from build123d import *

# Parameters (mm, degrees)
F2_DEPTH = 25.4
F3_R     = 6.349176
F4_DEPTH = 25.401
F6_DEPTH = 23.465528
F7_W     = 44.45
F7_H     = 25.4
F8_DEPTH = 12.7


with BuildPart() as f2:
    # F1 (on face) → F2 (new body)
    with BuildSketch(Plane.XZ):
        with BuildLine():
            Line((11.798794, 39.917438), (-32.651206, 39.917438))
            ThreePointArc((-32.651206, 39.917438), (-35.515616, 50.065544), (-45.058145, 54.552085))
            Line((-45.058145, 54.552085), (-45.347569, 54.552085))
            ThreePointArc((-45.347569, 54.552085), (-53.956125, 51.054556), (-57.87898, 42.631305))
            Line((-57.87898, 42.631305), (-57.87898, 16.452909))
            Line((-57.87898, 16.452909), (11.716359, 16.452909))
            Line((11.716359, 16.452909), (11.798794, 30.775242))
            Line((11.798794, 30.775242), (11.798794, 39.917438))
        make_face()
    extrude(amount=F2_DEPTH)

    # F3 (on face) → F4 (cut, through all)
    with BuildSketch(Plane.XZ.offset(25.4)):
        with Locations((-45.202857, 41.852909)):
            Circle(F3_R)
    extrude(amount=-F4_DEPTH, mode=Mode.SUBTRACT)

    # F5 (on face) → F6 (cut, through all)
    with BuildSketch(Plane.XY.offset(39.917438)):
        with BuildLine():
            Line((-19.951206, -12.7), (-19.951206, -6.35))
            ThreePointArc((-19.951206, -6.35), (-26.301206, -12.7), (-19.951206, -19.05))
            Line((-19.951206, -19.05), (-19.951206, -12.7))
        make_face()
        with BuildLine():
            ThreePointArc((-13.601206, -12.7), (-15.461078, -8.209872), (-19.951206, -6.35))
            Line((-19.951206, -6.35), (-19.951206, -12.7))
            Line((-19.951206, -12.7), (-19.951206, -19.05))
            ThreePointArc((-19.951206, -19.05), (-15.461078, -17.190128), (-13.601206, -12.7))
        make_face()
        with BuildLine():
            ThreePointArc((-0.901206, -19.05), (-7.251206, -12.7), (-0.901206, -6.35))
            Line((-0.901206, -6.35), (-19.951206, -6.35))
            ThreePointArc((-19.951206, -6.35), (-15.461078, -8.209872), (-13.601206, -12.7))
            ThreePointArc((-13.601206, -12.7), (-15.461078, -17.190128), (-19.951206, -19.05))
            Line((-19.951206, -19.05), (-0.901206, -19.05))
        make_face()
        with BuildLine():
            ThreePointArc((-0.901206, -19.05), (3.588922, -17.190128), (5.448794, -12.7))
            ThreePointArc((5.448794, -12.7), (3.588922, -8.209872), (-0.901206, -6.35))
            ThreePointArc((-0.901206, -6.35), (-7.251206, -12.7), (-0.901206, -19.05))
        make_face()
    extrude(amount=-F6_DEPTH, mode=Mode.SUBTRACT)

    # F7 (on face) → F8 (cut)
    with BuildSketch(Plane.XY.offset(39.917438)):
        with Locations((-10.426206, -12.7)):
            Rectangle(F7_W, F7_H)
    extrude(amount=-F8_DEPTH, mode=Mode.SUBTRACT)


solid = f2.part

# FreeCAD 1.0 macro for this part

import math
import FreeCAD as App
import Part
import Sketcher

V = App.Vector
Q = App.Units.Quantity


def add_polygon(sketch, points):
    """Adds a closed chain of lines whose ends are joined by coincident constraints."""
    first, n = sketch.GeometryCount, len(points)
    for a, b in zip(points, points[1:] + points[:1]):
        sketch.addGeometry(Part.LineSegment(App.Vector(*a, 0), App.Vector(*b, 0)), False)
    for i in range(n):
        sketch.addConstraint(Sketcher.Constraint("Coincident", first + i, 2, first + (i + 1) % n, 1))

doc = App.newDocument("Part")
body = doc.addObject("PartDesign::Body", "Body")

# Sketch on XZ plane
sketch1 = body.newObject("Sketcher::SketchObject", "Sketch")
sketch1.AttachmentSupport = (doc.getObject("XZ_Plane"), [""])
sketch1.MapMode = "FlatFace"
sketch1.addGeometry([
    Part.LineSegment(V(11.8, 39.92, 0), V(-32.65, 39.92, 0)),  # 0
    Part.ArcOfCircle(Part.Circle(V(-45.2, 41.85, 0), V(0, 0, 1), 12.7), math.radians(-9), math.radians(89)),  # 1
    Part.LineSegment(V(-45.06, 54.55, 0), V(-45.35, 54.55, 0)),  # 2
    Part.ArcOfCircle(Part.Circle(V(-45.2, 41.85, 0), V(0, 0, 1), 12.7), math.radians(91), math.radians(176)),  # 3
    Part.LineSegment(V(-57.88, 42.63, 0), V(-57.88, 16.45, 0)),  # 4
    Part.LineSegment(V(-57.88, 16.45, 0), V(11.72, 16.45, 0)),  # 5
    Part.LineSegment(V(11.72, 16.45, 0), V(11.8, 30.78, 0)),  # 6
    Part.LineSegment(V(11.8, 30.78, 0), V(11.8, 39.92, 0)),  # 7
], False)
sketch1.addConstraint([
    Sketcher.Constraint("Coincident", 0, 2, 1, 1),
    Sketcher.Constraint("Coincident", 1, 2, 2, 1),
    Sketcher.Constraint("Coincident", 2, 2, 3, 1),
    Sketcher.Constraint("Coincident", 3, 2, 4, 1),
    Sketcher.Constraint("Coincident", 4, 2, 5, 1),
    Sketcher.Constraint("Coincident", 5, 2, 6, 1),
    Sketcher.Constraint("Coincident", 6, 2, 7, 1),
    Sketcher.Constraint("Coincident", 7, 2, 0, 1),
    Sketcher.Constraint("Horizontal", 0),
    Sketcher.Constraint("Horizontal", 2),
    Sketcher.Constraint("Vertical", 4),
    Sketcher.Constraint("Horizontal", 5),
    Sketcher.Constraint("Vertical", 7),
    Sketcher.Constraint("Coincident", 3, 3, 1, 3),
    Sketcher.Constraint("Equal", 1, 3),
    Sketcher.Constraint("Radius", 1, Q("0.5 in")),
    Sketcher.Constraint("DistanceY", 4, 2, 3, 3, Q("1 in")),
    Sketcher.Constraint("DistanceX", 0, 2, 0, 1, Q("1.75 in")),
    Sketcher.Constraint("DistanceX", 3, 2, -1, 1, Q("2.2787 in")),
    Sketcher.Constraint("DistanceX", 5, 1, 5, 2, 69.595339),
    Sketcher.Constraint("Distance", 6, 14.32257),
    Sketcher.Constraint("DistanceX", 2, 2, 2, 1, 0.289424),
    Sketcher.Constraint("DistanceY", 4, 2, 4, 1, 26.178396),
    Sketcher.Constraint("DistanceY", 7, 1, 7, 2, 9.142196),
    Sketcher.Constraint("DistanceY", -1, 1, 1, 3, 41.85291),
])
pad1 = body.newObject("PartDesign::Pad", "Pad")
pad1.Profile = sketch1
pad1.Length = Q("1 in")

# Sketch on XZ plane
sketch2 = body.newObject("Sketcher::SketchObject", "Sketch001")
sketch2.AttachmentSupport = (doc.getObject("XZ_Plane"), [""])
sketch2.MapMode = "FlatFace"
sketch2.AttachmentOffset = App.Placement(V(0, 0, 1 * 25.4), App.Rotation())
sketch2.addGeometry(Part.Circle(V(-45, 42, 0), V(0, 0, 1), 6), False)
sketch2.addConstraint([
    Sketcher.Constraint("Diameter", 0, 12.698352),
    Sketcher.Constraint("DistanceY", -1, 1, 0, 3, 41.852909),
    Sketcher.Constraint("DistanceX", 0, 3, -1, 1, 45.202857),
])
pocket1 = body.newObject("PartDesign::Pocket", "Pocket")
pocket1.Profile = sketch2
pocket1.Type = "ThroughAll"

# Sketch on XY plane
sketch3 = body.newObject("Sketcher::SketchObject", "Sketch002")
sketch3.AttachmentSupport = (doc.getObject("XY_Plane"), [""])
sketch3.MapMode = "FlatFace"
sketch3.AttachmentOffset = App.Placement(V(0, 0, 39.917438), App.Rotation())
sketch3.addGeometry([
    Part.ArcOfCircle(Part.Circle(V(-20, -13, 0), V(0, 0, 1), 6), math.radians(90), math.radians(270)),  # 0
    Part.LineSegment(V(-20, -19, 0), V(-1, -19, 0)),  # 1
    Part.ArcOfCircle(Part.Circle(V(-1, -13, 0), V(0, 0, 1), 6), math.radians(-90), math.radians(0)),  # 2
    Part.ArcOfCircle(Part.Circle(V(-1, -13, 0), V(0, 0, 1), 6), math.radians(0), math.radians(90)),  # 3
    Part.LineSegment(V(-1, -6, 0), V(-20, -6, 0)),  # 4
], False)
sketch3.addConstraint([
    Sketcher.Constraint("Tangent", 0, 2, 1, 1),
    Sketcher.Constraint("Tangent", 1, 2, 2, 1),
    Sketcher.Constraint("Tangent", 2, 2, 3, 1),
    Sketcher.Constraint("Tangent", 3, 2, 4, 1),
    Sketcher.Constraint("Tangent", 4, 2, 0, 1),
    Sketcher.Constraint("Horizontal", 1),
    Sketcher.Constraint("Horizontal", 4),
    Sketcher.Constraint("Equal", 0, 2),
    Sketcher.Constraint("Horizontal", 3, 3, 2, 2),
    Sketcher.Constraint("Radius", 0, Q("0.25 in")),
    Sketcher.Constraint("DistanceX", 0, 3, 2, 2, Q("1 in")),
    Sketcher.Constraint("DistanceY", 0, 3, -1, 1, Q("0.5 in")),
    Sketcher.Constraint("DistanceX", 0, 3, -1, 1, 19.951206),
])
pocket2 = body.newObject("PartDesign::Pocket", "Pocket001")
pocket2.Profile = sketch3
pocket2.Type = "ThroughAll"

# Sketch on XY plane
sketch4 = body.newObject("Sketcher::SketchObject", "Sketch003")
sketch4.AttachmentSupport = (doc.getObject("XY_Plane"), [""])
sketch4.MapMode = "FlatFace"
sketch4.AttachmentOffset = App.Placement(V(0, 0, 39.917438), App.Rotation())
add_polygon(sketch4, [(-33, 0), (-33, -25), (12, -25), (12, 0)])  # lines 0-3
sketch4.addConstraint([
    Sketcher.Constraint("Vertical", 0),
    Sketcher.Constraint("Horizontal", 1),
    Sketcher.Constraint("Vertical", 2),
    Sketcher.Constraint("Horizontal", 3),
    Sketcher.Constraint("PointOnObject", 2, 2, -1),
    Sketcher.Constraint("DistanceY", 0, 2, 0, 1, Q("1 in")),
    Sketcher.Constraint("DistanceX", 1, 1, 1, 2, Q("1.75 in")),
    Sketcher.Constraint("DistanceX", 0, 2, -1, 1, 32.651206),
])
pocket3 = body.newObject("PartDesign::Pocket", "Pocket002")
pocket3.Profile = sketch4
pocket3.Length = Q("0.5 in")

doc.recompute()
